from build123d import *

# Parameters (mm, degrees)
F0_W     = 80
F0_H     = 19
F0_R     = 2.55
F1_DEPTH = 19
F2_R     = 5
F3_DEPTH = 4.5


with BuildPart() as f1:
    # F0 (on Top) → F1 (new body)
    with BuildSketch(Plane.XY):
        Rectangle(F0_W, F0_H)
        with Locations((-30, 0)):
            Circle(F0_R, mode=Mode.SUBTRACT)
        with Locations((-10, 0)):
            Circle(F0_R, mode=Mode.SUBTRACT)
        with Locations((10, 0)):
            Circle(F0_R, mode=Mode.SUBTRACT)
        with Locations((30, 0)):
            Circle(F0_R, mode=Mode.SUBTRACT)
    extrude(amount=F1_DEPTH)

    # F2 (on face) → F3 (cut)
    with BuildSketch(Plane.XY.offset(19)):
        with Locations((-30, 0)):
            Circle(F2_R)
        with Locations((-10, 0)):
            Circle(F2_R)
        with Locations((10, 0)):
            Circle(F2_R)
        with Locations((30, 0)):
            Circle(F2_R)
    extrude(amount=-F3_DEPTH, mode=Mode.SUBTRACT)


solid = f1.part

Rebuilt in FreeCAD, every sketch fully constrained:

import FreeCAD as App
import Part
import Sketcher

V = App.Vector
Q = App.Units.Quantity

doc = App.newDocument("Part")
body = doc.addObject("PartDesign::Body", "Body")

sketch1 = body.newObject("Sketcher::SketchObject", "Sketch")
sketch1.AttachmentSupport = (doc.getObject("XY_Plane"), [""])
sketch1.MapMode = "FlatFace"
sketch1.addGeometry([
    Part.LineSegment(V(-40, 9.5, 0), V(-40, -9.5, 0)),
    Part.LineSegment(V(-40, -9.5, 0), V(40, -9.5, 0)),
    Part.LineSegment(V(40, -9.5, 0), V(40, 9.5, 0)),
    Part.LineSegment(V(40, 9.5, 0), V(-40, 9.5, 0)),
    Part.Circle(V(-30, 0, 0), V(0, 0, 1), 2.55),
    Part.Circle(V(-10, 0, 0), V(0, 0, 1), 2.55),
    Part.Circle(V(10, 0, 0), V(0, 0, 1), 2.55),
    Part.Circle(V(30, 0, 0), V(0, 0, 1), 2.55),
], False)
sketch1.addConstraint([
    Sketcher.Constraint("Coincident", 0, 2, 1, 1),
    Sketcher.Constraint("Coincident", 1, 2, 2, 1),
    Sketcher.Constraint("Coincident", 2, 2, 3, 1),
    Sketcher.Constraint("Coincident", 3, 2, 0, 1),
    Sketcher.Constraint("Vertical", 0),
    Sketcher.Constraint("Horizontal", 1),
    Sketcher.Constraint("Vertical", 2),
    Sketcher.Constraint("Horizontal", 3),
    Sketcher.Constraint("Equal", 4, 5),
    Sketcher.Constraint("Equal", 5, 6),
    Sketcher.Constraint("Equal", 6, 7),
    Sketcher.Constraint("Symmetric", 5, 3, 6, 3, -1, 1),
    Sketcher.Constraint("Symmetric", 4, 3, 7, 3, -1, 1),
    Sketcher.Constraint("Symmetric", 0, 2, 2, 2, -1, 1),
    Sketcher.Constraint("PointOnObject", 4, 3, -1),
    Sketcher.Constraint("PointOnObject", 5, 3, -1),
    Sketcher.Constraint("Diameter", 4, Q("5.1 mm")),
    Sketcher.Constraint("DistanceX", 1, 1, 1, 2, Q("80 mm")),
    Sketcher.Constraint("DistanceY", 0, 2, 0, 1, Q("19 mm")),
    Sketcher.Constraint("DistanceX", 4, 3, -1, 1, Q("30 mm")),
    Sketcher.Constraint("DistanceX", 5, 3, -1, 1, Q("10 mm")),
])
pad1 = body.newObject("PartDesign::Pad", "Pad")
pad1.Profile = sketch1
pad1.Length = 19

sketch2 = body.newObject("Sketcher::SketchObject", "Sketch001")
sketch2.AttachmentSupport = (doc.getObject("XY_Plane"), [""])
sketch2.MapMode = "FlatFace"
sketch2.AttachmentOffset = App.Placement(V(0, 0, 19), App.Rotation())
sketch2.addGeometry([
    Part.Circle(V(-30, 0, 0), V(0, 0, 1), 5),
    Part.Circle(V(-10, 0, 0), V(0, 0, 1), 5),
    Part.Circle(V(10, 0, 0), V(0, 0, 1), 5),
    Part.Circle(V(30, 0, 0), V(0, 0, 1), 5),
], False)
sketch2.addConstraint([
    Sketcher.Constraint("Equal", 0, 1),
    Sketcher.Constraint("Equal", 1, 2),
    Sketcher.Constraint("Equal", 2, 3),
    Sketcher.Constraint("Symmetric", 1, 3, 2, 3, -1, 1),
    Sketcher.Constraint("Symmetric", 0, 3, 3, 3, -1, 1),
    Sketcher.Constraint("PointOnObject", 0, 3, -1),
    Sketcher.Constraint("PointOnObject", 1, 3, -1),
    Sketcher.Constraint("Diameter", 0, Q("10 mm")),
    Sketcher.Constraint("DistanceX", 0, 3, -1, 1, Q("30 mm")),
    Sketcher.Constraint("DistanceX", 1, 3, -1, 1, Q("10 mm")),
])
pocket1 = body.newObject("PartDesign::Pocket", "Pocket")
pocket1.Profile = sketch2
pocket1.Length = 4.5

doc.recompute()
